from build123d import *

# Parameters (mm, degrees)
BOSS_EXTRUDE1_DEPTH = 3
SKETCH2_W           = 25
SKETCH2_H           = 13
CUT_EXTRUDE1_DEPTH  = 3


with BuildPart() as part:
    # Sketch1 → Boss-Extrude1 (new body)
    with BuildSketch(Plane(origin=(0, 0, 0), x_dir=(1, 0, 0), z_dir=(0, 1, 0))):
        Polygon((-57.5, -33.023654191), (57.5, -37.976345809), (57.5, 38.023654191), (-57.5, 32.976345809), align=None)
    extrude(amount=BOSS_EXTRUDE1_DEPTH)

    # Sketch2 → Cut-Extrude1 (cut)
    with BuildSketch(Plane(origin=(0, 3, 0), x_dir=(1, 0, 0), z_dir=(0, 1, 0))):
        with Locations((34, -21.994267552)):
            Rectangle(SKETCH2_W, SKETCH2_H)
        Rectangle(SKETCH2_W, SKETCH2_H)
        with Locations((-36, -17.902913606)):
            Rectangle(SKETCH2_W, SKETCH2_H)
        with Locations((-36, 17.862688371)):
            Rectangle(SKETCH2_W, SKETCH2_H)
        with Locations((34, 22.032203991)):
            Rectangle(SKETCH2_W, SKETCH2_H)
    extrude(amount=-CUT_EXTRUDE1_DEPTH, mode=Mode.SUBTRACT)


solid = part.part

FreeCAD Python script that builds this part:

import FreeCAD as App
import Part
import Sketcher

doc = App.newDocument("Part")
params = doc.addObject("Spreadsheet::Sheet", "Params")
for row, (alias, value) in enumerate([
    ("sketch1_height", "76 mm"),
    ("sketch1_height2", "66 mm"),
    ("pad1_length", "3 mm"),
    ("sketch2_width", "25 mm"),
    ("sketch2_height", "13 mm"),
    ("pocket1_length", "3 mm"),
], start=1):
    params.set(f"A{row}", alias)
    params.set(f"B{row}", "=" + value)
    params.setAlias(f"B{row}", alias)

body = doc.addObject("PartDesign::Body", "Body")

sketch1 = doc.addObject("Sketcher::SketchObject", "Sketch")
body.addObject(sketch1)
sketch1.AttachmentSupport = (doc.XZ_Plane, [""])
sketch1.MapMode = "FlatFace"
sketch1.addGeometry([
    Part.LineSegment(App.Vector(-58, 33, 0), App.Vector(58, 38, 0)),
    Part.LineSegment(App.Vector(58, 38, 0), App.Vector(58, -38, 0)),
    Part.LineSegment(App.Vector(58, -38, 0), App.Vector(-58, -33, 0)),
    Part.LineSegment(App.Vector(-58, -33, 0), App.Vector(-58, 33, 0)),
], False)
sketch1.addConstraint([
    Sketcher.Constraint("Coincident", 0, 2, 1, 1),
    Sketcher.Constraint("Coincident", 1, 2, 2, 1),
    Sketcher.Constraint("Coincident", 2, 2, 3, 1),
    Sketcher.Constraint("Coincident", 3, 2, 0, 1),
    Sketcher.Constraint("Vertical", 1),
    Sketcher.Constraint("Vertical", 3),
    Sketcher.Constraint("DistanceY", 1, 2, 1, 1, 76.0),
    Sketcher.Constraint("DistanceY", 3, 1, 3, 2, 66.0),
    Sketcher.Constraint("DistanceX", 2, 2, 1, 2, 115.0),
    Sketcher.Constraint("DistanceX", -1, 1, 0, 2, 57.5),
    Sketcher.Constraint("Distance", 0, 115.106599),
    Sketcher.Constraint("DistanceY", -1, 1, 0, 2, 37.976346),
])
sketch1.setExpression("Constraints[6]", "Params.sketch1_height")
sketch1.setExpression("Constraints[7]", "Params.sketch1_height2")
pad1 = doc.addObject("PartDesign::Pad", "Pad")
body.addObject(pad1)
pad1.Profile = sketch1
pad1.setExpression("Length", "Params.pad1_length")
pad1.Reversed = True

sketch2 = doc.addObject("Sketcher::SketchObject", "Sketch001")
body.addObject(sketch2)
sketch2.AttachmentSupport = (doc.XZ_Plane, [""])
sketch2.MapMode = "FlatFace"
sketch2.AttachmentOffset = App.Placement(App.Vector(0, 0, -3), App.Rotation())
sketch2.addGeometry([
    Part.LineSegment(App.Vector(22, 15, 0), App.Vector(22, 28, 0)),
    Part.LineSegment(App.Vector(22, 28, 0), App.Vector(46, 28, 0)),
    Part.LineSegment(App.Vector(46, 28, 0), App.Vector(46, 15, 0)),
    Part.LineSegment(App.Vector(46, 15, 0), App.Vector(22, 15, 0)),
    Part.LineSegment(App.Vector(-12, -6, 0), App.Vector(-12, 6, 0)),
    Part.LineSegment(App.Vector(-12, 6, 0), App.Vector(12, 6, 0)),
    Part.LineSegment(App.Vector(12, 6, 0), App.Vector(12, -6, 0)),
    Part.LineSegment(App.Vector(12, -6, 0), App.Vector(-12, -6, 0)),
    Part.LineSegment(App.Vector(-48, 11, 0), App.Vector(-48, 24, 0)),
    Part.LineSegment(App.Vector(-48, 24, 0), App.Vector(-24, 24, 0)),
    Part.LineSegment(App.Vector(-24, 24, 0), App.Vector(-24, 11, 0)),
    Part.LineSegment(App.Vector(-24, 11, 0), App.Vector(-48, 11, 0)),
    Part.LineSegment(App.Vector(-48, -24, 0), App.Vector(-48, -11, 0)),
    Part.LineSegment(App.Vector(-48, -11, 0), App.Vector(-24, -11, 0)),
    Part.LineSegment(App.Vector(-24, -11, 0), App.Vector(-24, -24, 0)),
    Part.LineSegment(App.Vector(-24, -24, 0), App.Vector(-48, -24, 0)),
    Part.LineSegment(App.Vector(22, -29, 0), App.Vector(22, -16, 0)),
    Part.LineSegment(App.Vector(22, -16, 0), App.Vector(46, -16, 0)),
    Part.LineSegment(App.Vector(46, -16, 0), App.Vector(46, -29, 0)),
    Part.LineSegment(App.Vector(46, -29, 0), App.Vector(22, -29, 0)),
], False)
sketch2.addConstraint([
    Sketcher.Constraint("Coincident", 0, 2, 1, 1),
    Sketcher.Constraint("Coincident", 1, 2, 2, 1),
    Sketcher.Constraint("Coincident", 2, 2, 3, 1),
    Sketcher.Constraint("Coincident", 3, 2, 0, 1),
    Sketcher.Constraint("Coincident", 4, 2, 5, 1),
    Sketcher.Constraint("Coincident", 5, 2, 6, 1),
    Sketcher.Constraint("Coincident", 6, 2, 7, 1),
    Sketcher.Constraint("Coincident", 7, 2, 4, 1),
    Sketcher.Constraint("Coincident", 8, 2, 9, 1),
    Sketcher.Constraint("Coincident", 9, 2, 10, 1),
    Sketcher.Constraint("Coincident", 10, 2, 11, 1),
    Sketcher.Constraint("Coincident", 11, 2, 8, 1),
    Sketcher.Constraint("Coincident", 12, 2, 13, 1),
    Sketcher.Constraint("Coincident", 13, 2, 14, 1),
    Sketcher.Constraint("Coincident", 14, 2, 15, 1),
    Sketcher.Constraint("Coincident", 15, 2, 12, 1),
    Sketcher.Constraint("Coincident", 16, 2, 17, 1),
    Sketcher.Constraint("Coincident", 17, 2, 18, 1),
    Sketcher.Constraint("Coincident", 18, 2, 19, 1),
    Sketcher.Constraint("Coincident", 19, 2, 16, 1),
    Sketcher.Constraint("Vertical", 0),
    Sketcher.Constraint("Horizontal", 1),
    Sketcher.Constraint("Vertical", 2),
    Sketcher.Constraint("Horizontal", 3),
    Sketcher.Constraint("Vertical", 4),
    Sketcher.Constraint("Horizontal", 5),
    Sketcher.Constraint("Vertical", 6),
    Sketcher.Constraint("Horizontal", 7),
    Sketcher.Constraint("Vertical", 8),
    Sketcher.Constraint("Horizontal", 9),
    Sketcher.Constraint("Vertical", 10),
    Sketcher.Constraint("Horizontal", 11),
    Sketcher.Constraint("Vertical", 12),
    Sketcher.Constraint("Horizontal", 13),
    Sketcher.Constraint("Vertical", 14),
    Sketcher.Constraint("Horizontal", 15),
    Sketcher.Constraint("Vertical", 16),
    Sketcher.Constraint("Horizontal", 17),
    Sketcher.Constraint("Vertical", 18),
    Sketcher.Constraint("Horizontal", 19),
    Sketcher.Constraint("Symmetric", 4, 2, 6, 2, -1, 1),
    Sketcher.Constraint("Vertical", 11, 2, 12, 2),
    Sketcher.Constraint("Vertical", 10, 2, 13, 2),
    Sketcher.Constraint("Vertical", 3, 2, 16, 2),
    Sketcher.Constraint("Vertical", 2, 2, 17, 2),
    Sketcher.Constraint("Equal", 3, 5),
    Sketcher.Constraint("Equal", 7, 9),
    Sketcher.Constraint("Equal", 2, 4),
    Sketcher.Constraint("Equal", 6, 8),
    Sketcher.Constraint("Equal", 10, 12),
    Sketcher.Constraint("Equal", 14, 16),
    Sketcher.Constraint("DistanceX", 1, 1, 1, 2, 25.0),
    Sketcher.Constraint("DistanceY", 0, 1, 0, 2, 13.0),
    Sketcher.Constraint("DistanceX", 4, 2, 3, 2, 34.0),
    Sketcher.Constraint("DistanceX", 8, 2, 4, 2, 36.0),
    Sketcher.Constraint("DistanceY", 12, 2, 11, 2, 22.765602),
    Sketcher.Constraint("DistanceY", 12, 2, -1, 1, 11.362688),
    Sketcher.Constraint("DistanceY", 16, 2, 3, 2, 31.026472),
    Sketcher.Constraint("DistanceY", -1, 1, 0, 2, 28.494268),
])
sketch2.setExpression("Constraints[51]", "Params.sketch2_width")
sketch2.setExpression("Constraints[52]", "Params.sketch2_height")
pocket1 = doc.addObject("PartDesign::Pocket", "Pocket")
body.addObject(pocket1)
pocket1.Profile = sketch2
pocket1.setExpression("Length", "Params.pocket1_length")
pocket1.Reversed = True

doc.recompute()
